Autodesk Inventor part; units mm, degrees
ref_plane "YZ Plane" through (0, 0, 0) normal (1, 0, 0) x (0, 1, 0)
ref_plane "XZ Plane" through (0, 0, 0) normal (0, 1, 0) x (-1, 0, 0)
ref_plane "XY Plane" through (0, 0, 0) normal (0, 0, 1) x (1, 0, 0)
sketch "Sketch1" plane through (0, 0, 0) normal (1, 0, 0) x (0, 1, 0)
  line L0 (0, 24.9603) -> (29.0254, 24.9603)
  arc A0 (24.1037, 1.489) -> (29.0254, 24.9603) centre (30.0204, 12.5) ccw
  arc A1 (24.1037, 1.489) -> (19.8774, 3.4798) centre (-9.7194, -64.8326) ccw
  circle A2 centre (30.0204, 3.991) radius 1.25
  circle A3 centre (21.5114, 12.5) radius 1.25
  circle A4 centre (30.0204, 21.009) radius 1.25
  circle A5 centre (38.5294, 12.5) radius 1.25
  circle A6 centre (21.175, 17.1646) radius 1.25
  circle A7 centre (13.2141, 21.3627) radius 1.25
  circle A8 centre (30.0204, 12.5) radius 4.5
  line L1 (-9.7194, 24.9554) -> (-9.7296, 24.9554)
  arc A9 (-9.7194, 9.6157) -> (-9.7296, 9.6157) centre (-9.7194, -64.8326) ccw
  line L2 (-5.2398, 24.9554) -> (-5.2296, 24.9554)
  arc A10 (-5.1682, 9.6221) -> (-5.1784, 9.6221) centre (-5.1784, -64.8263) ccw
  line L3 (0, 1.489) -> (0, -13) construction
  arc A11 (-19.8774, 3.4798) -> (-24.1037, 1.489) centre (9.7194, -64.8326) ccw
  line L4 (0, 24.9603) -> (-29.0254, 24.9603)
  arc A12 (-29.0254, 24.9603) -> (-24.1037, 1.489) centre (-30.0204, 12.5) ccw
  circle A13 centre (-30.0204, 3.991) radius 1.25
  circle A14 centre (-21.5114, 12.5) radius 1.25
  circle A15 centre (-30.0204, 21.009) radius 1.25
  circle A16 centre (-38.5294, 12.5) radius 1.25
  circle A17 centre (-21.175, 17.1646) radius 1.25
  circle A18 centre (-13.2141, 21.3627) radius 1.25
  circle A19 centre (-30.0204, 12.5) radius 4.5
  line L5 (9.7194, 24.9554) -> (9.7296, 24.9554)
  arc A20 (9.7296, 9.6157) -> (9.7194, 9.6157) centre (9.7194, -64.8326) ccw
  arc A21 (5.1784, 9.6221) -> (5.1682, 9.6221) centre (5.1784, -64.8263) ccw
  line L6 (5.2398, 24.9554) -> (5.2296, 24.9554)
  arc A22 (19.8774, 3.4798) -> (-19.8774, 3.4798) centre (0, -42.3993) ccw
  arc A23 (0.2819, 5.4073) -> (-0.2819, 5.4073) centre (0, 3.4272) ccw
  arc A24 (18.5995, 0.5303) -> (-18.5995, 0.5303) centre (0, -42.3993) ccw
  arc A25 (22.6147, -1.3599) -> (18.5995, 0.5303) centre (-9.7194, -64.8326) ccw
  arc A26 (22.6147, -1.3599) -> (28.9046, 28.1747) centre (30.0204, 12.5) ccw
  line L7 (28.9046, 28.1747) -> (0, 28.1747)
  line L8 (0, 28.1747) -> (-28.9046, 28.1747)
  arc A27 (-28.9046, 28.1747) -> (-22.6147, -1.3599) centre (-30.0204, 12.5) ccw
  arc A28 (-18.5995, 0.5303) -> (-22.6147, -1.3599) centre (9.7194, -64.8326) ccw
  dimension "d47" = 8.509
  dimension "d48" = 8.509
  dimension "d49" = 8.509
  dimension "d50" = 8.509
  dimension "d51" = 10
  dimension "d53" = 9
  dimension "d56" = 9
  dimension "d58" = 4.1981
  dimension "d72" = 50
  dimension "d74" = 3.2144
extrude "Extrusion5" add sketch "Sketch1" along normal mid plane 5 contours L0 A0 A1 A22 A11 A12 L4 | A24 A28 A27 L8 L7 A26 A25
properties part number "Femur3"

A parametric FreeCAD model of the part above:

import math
import FreeCAD as App
import Part
import Sketcher
from FreeCAD import Vector
Q = App.Units.Quantity

doc = App.newDocument("Part")
body = doc.addObject("PartDesign::Body", "Body")

# Sketch on YZ plane
sketch1 = body.newObject("Sketcher::SketchObject", "Sketch")
sketch1.AttachmentSupport = (doc.getObject("YZ_Plane"), [""])
sketch1.MapMode = "FlatFace"
sketch1.addGeometry([
    Part.ArcOfCircle(Part.Circle(Vector(0, -42.3993, 0), Vector(0, 0, 1), 46.785596), math.radians(66.575045), math.radians(113.424955)),  # 0
    Part.ArcOfCircle(Part.Circle(Vector(-9.691184, -64.77501, 0), Vector(0, 0, 1), 71.169841), math.radians(63.004109), math.radians(66.577426)),  # 1
    Part.ArcOfCircle(Part.Circle(Vector(30.0204, 12.5, 0), Vector(0, 0, 1), 15.714364), math.radians(-118.116733), math.radians(94.071719)),  # 2
    Part.LineSegment(Vector(28.9046, 28.1747, 0), Vector(-28.9046, 28.1747, 0)),  # 3
    Part.ArcOfCircle(Part.Circle(Vector(-30.0204, 12.5, 0), Vector(0, 0, 1), 15.714364), math.radians(85.928281), math.radians(298.116733)),  # 4
    Part.ArcOfCircle(Part.Circle(Vector(9.745856, -64.891146, 0), Vector(0, 0, 1), 71.298141), math.radians(113.42579), math.radians(116.992675)),  # 5
    Part.Circle(Vector(-30.0204, 3.991, 0), Vector(0, 0, 1), 1.25),  # 6
    Part.Circle(Vector(-38.5294, 12.5, 0), Vector(0, 0, 1), 1.25),  # 7
    Part.Circle(Vector(-30.0204, 12.5, 0), Vector(0, 0, 1), 4.5),  # 8
    Part.Circle(Vector(-21.5114, 12.5, 0), Vector(0, 0, 1), 1.25),  # 9
    Part.Circle(Vector(30.0204, 3.991, 0), Vector(0, 0, 1), 1.25),  # 10
    Part.Circle(Vector(21.5114, 12.5, 0), Vector(0, 0, 1), 1.25),  # 11
    Part.Circle(Vector(30.0204, 12.5, 0), Vector(0, 0, 1), 4.5),  # 12
    Part.Circle(Vector(38.5294, 12.5, 0), Vector(0, 0, 1), 1.25),  # 13
    Part.Circle(Vector(-21.175, 17.1646, 0), Vector(0, 0, 1), 1.25),  # 14
    Part.Circle(Vector(-30.0204, 21.009, 0), Vector(0, 0, 1), 1.25),  # 15
    Part.Circle(Vector(-13.2141, 21.3627, 0), Vector(0, 0, 1), 1.25),  # 16
    Part.Circle(Vector(21.175, 17.1646, 0), Vector(0, 0, 1), 1.25),  # 17
    Part.Circle(Vector(13.2141, 21.3627, 0), Vector(0, 0, 1), 1.25),  # 18
    Part.Circle(Vector(30.0204, 21.009, 0), Vector(0, 0, 1), 1.25),  # 19
], False)
sketch1.addConstraint([
    Sketcher.Constraint("Coincident", 0, 1, 1, 2),
    Sketcher.Constraint("Coincident", 1, 1, 2, 1),
    Sketcher.Constraint("Coincident", 2, 2, 3, 1),
    Sketcher.Constraint("Coincident", 3, 2, 4, 1),
    Sketcher.Constraint("Coincident", 4, 2, 5, 2),
    Sketcher.Constraint("Coincident", 5, 1, 0, 2),
    Sketcher.Constraint("Horizontal", 3),
    Sketcher.Constraint("Coincident", 8, 3, 4, 3),
    Sketcher.Constraint("Coincident", 12, 3, 2, 3),
    Sketcher.Constraint("PointOnObject", 0, 3, -2),
    Sketcher.Constraint("Diameter", 8, Q("9 mm")),
    Sketcher.Constraint("Diameter", 12, Q("9 mm")),
    Sketcher.Constraint("Diameter", 6, Q("2.5 mm")),
    Sketcher.Constraint("Diameter", 7, Q("2.5 mm")),
    Sketcher.Constraint("Diameter", 9, Q("2.5 mm")),
    Sketcher.Constraint("Diameter", 10, Q("2.5 mm")),
    Sketcher.Constraint("Diameter", 11, Q("2.5 mm")),
    Sketcher.Constraint("Diameter", 13, Q("2.5 mm")),
    Sketcher.Constraint("Diameter", 14, Q("2.5 mm")),
    Sketcher.Constraint("Diameter", 15, Q("2.5 mm")),
    Sketcher.Constraint("Diameter", 16, Q("2.5 mm")),
    Sketcher.Constraint("Diameter", 17, Q("2.5 mm")),
    Sketcher.Constraint("Diameter", 18, Q("2.5 mm")),
    Sketcher.Constraint("Diameter", 19, Q("2.5 mm")),
    Sketcher.Constraint("DistanceY", 6, 3, 4, 3, Q("8.509 mm")),
    Sketcher.Constraint("DistanceY", 6, 3, 2, 3, Q("8.509 mm")),
    Sketcher.Constraint("DistanceX", 7, 3, 4, 3, Q("8.509 mm")),
    Sketcher.Constraint("DistanceX", 7, 3, 6, 3, Q("8.509 mm")),
    Sketcher.Constraint("DistanceY", 6, 3, 7, 3, Q("8.509 mm")),
    Sketcher.Constraint("DistanceX", 4, 3, 9, 3, Q("8.509 mm")),
    Sketcher.Constraint("DistanceY", 6, 3, 9, 3, Q("8.509 mm")),
    Sketcher.Constraint("DistanceY", 10, 3, 2, 3, Q("8.509 mm")),
    Sketcher.Constraint("DistanceX", 11, 3, 2, 3, Q("8.509 mm")),
    Sketcher.Constraint("DistanceX", 11, 3, 10, 3, Q("8.509 mm")),
    Sketcher.Constraint("DistanceY", 10, 3, 11, 3, Q("8.509 mm")),
    Sketcher.Constraint("DistanceX", 2, 3, 13, 3, Q("8.509 mm")),
    Sketcher.Constraint("DistanceY", 10, 3, 13, 3, Q("8.509 mm")),
    Sketcher.Constraint("DistanceY", 4, 3, 15, 3, Q("8.509 mm")),
    Sketcher.Constraint("DistanceX", 15, 3, 9, 3, Q("8.509 mm")),
    Sketcher.Constraint("DistanceY", 14, 3, 16, 3, Q("4.198 mm")),
    Sketcher.Constraint("DistanceY", 17, 3, 18, 3, Q("4.198 mm")),
    Sketcher.Constraint("DistanceY", 2, 3, 19, 3, Q("8.509 mm")),
    Sketcher.Constraint("DistanceX", 11, 3, 19, 3, Q("8.509 mm")),
    Sketcher.Constraint("DistanceY", -1, 1, 2, 3, Q("12.5 mm")),
    Sketcher.Constraint("Radius", 0, Q("46.7856 mm")),
    Sketcher.Constraint("Radius", 1, Q("71.1698 mm")),
    Sketcher.Constraint("Radius", 2, Q("15.7144 mm")),
    Sketcher.Constraint("Radius", 4, Q("15.7144 mm")),
    Sketcher.Constraint("Radius", 5, Q("71.2981 mm")),
    Sketcher.Constraint("DistanceY", 1, 1, -1, 1, Q("1.36 mm")),
    Sketcher.Constraint("DistanceY", 4, 2, -1, 1, Q("1.36 mm")),
    Sketcher.Constraint("DistanceY", 17, 3, 2, 2, Q("11.01 mm")),
    Sketcher.Constraint("DistanceY", 14, 3, 3, 2, Q("11.01 mm")),
    Sketcher.Constraint("DistanceX", 3, 2, 3, 1, Q("57.8092 mm")),
    Sketcher.Constraint("DistanceY", 1, 3, -1, 1, Q("64.775 mm")),
    Sketcher.Constraint("DistanceX", 14, 3, -1, 1, Q("21.175 mm")),
    Sketcher.Constraint("DistanceX", 16, 3, -1, 1, Q("13.214 mm")),
    Sketcher.Constraint("DistanceX", -1, 1, 17, 3, Q("21.175 mm")),
    Sketcher.Constraint("DistanceX", -1, 1, 18, 3, Q("13.214 mm")),
    Sketcher.Constraint("DistanceX", 1, 3, 5, 3, Q("19.437 mm")),
    Sketcher.Constraint("DistanceX", 0, 1, 10, 3, Q("11.421 mm")),
    Sketcher.Constraint("DistanceX", 6, 3, 5, 1, Q("11.421 mm")),
    Sketcher.Constraint("DistanceY", 0, 3, -1, 1, Q("42.3993 mm")),
])
pad1 = body.newObject("PartDesign::Pad", "Pad")
pad1.Profile = sketch1
pad1.Length = 5
pad1.Midplane = True

doc.recompute()
